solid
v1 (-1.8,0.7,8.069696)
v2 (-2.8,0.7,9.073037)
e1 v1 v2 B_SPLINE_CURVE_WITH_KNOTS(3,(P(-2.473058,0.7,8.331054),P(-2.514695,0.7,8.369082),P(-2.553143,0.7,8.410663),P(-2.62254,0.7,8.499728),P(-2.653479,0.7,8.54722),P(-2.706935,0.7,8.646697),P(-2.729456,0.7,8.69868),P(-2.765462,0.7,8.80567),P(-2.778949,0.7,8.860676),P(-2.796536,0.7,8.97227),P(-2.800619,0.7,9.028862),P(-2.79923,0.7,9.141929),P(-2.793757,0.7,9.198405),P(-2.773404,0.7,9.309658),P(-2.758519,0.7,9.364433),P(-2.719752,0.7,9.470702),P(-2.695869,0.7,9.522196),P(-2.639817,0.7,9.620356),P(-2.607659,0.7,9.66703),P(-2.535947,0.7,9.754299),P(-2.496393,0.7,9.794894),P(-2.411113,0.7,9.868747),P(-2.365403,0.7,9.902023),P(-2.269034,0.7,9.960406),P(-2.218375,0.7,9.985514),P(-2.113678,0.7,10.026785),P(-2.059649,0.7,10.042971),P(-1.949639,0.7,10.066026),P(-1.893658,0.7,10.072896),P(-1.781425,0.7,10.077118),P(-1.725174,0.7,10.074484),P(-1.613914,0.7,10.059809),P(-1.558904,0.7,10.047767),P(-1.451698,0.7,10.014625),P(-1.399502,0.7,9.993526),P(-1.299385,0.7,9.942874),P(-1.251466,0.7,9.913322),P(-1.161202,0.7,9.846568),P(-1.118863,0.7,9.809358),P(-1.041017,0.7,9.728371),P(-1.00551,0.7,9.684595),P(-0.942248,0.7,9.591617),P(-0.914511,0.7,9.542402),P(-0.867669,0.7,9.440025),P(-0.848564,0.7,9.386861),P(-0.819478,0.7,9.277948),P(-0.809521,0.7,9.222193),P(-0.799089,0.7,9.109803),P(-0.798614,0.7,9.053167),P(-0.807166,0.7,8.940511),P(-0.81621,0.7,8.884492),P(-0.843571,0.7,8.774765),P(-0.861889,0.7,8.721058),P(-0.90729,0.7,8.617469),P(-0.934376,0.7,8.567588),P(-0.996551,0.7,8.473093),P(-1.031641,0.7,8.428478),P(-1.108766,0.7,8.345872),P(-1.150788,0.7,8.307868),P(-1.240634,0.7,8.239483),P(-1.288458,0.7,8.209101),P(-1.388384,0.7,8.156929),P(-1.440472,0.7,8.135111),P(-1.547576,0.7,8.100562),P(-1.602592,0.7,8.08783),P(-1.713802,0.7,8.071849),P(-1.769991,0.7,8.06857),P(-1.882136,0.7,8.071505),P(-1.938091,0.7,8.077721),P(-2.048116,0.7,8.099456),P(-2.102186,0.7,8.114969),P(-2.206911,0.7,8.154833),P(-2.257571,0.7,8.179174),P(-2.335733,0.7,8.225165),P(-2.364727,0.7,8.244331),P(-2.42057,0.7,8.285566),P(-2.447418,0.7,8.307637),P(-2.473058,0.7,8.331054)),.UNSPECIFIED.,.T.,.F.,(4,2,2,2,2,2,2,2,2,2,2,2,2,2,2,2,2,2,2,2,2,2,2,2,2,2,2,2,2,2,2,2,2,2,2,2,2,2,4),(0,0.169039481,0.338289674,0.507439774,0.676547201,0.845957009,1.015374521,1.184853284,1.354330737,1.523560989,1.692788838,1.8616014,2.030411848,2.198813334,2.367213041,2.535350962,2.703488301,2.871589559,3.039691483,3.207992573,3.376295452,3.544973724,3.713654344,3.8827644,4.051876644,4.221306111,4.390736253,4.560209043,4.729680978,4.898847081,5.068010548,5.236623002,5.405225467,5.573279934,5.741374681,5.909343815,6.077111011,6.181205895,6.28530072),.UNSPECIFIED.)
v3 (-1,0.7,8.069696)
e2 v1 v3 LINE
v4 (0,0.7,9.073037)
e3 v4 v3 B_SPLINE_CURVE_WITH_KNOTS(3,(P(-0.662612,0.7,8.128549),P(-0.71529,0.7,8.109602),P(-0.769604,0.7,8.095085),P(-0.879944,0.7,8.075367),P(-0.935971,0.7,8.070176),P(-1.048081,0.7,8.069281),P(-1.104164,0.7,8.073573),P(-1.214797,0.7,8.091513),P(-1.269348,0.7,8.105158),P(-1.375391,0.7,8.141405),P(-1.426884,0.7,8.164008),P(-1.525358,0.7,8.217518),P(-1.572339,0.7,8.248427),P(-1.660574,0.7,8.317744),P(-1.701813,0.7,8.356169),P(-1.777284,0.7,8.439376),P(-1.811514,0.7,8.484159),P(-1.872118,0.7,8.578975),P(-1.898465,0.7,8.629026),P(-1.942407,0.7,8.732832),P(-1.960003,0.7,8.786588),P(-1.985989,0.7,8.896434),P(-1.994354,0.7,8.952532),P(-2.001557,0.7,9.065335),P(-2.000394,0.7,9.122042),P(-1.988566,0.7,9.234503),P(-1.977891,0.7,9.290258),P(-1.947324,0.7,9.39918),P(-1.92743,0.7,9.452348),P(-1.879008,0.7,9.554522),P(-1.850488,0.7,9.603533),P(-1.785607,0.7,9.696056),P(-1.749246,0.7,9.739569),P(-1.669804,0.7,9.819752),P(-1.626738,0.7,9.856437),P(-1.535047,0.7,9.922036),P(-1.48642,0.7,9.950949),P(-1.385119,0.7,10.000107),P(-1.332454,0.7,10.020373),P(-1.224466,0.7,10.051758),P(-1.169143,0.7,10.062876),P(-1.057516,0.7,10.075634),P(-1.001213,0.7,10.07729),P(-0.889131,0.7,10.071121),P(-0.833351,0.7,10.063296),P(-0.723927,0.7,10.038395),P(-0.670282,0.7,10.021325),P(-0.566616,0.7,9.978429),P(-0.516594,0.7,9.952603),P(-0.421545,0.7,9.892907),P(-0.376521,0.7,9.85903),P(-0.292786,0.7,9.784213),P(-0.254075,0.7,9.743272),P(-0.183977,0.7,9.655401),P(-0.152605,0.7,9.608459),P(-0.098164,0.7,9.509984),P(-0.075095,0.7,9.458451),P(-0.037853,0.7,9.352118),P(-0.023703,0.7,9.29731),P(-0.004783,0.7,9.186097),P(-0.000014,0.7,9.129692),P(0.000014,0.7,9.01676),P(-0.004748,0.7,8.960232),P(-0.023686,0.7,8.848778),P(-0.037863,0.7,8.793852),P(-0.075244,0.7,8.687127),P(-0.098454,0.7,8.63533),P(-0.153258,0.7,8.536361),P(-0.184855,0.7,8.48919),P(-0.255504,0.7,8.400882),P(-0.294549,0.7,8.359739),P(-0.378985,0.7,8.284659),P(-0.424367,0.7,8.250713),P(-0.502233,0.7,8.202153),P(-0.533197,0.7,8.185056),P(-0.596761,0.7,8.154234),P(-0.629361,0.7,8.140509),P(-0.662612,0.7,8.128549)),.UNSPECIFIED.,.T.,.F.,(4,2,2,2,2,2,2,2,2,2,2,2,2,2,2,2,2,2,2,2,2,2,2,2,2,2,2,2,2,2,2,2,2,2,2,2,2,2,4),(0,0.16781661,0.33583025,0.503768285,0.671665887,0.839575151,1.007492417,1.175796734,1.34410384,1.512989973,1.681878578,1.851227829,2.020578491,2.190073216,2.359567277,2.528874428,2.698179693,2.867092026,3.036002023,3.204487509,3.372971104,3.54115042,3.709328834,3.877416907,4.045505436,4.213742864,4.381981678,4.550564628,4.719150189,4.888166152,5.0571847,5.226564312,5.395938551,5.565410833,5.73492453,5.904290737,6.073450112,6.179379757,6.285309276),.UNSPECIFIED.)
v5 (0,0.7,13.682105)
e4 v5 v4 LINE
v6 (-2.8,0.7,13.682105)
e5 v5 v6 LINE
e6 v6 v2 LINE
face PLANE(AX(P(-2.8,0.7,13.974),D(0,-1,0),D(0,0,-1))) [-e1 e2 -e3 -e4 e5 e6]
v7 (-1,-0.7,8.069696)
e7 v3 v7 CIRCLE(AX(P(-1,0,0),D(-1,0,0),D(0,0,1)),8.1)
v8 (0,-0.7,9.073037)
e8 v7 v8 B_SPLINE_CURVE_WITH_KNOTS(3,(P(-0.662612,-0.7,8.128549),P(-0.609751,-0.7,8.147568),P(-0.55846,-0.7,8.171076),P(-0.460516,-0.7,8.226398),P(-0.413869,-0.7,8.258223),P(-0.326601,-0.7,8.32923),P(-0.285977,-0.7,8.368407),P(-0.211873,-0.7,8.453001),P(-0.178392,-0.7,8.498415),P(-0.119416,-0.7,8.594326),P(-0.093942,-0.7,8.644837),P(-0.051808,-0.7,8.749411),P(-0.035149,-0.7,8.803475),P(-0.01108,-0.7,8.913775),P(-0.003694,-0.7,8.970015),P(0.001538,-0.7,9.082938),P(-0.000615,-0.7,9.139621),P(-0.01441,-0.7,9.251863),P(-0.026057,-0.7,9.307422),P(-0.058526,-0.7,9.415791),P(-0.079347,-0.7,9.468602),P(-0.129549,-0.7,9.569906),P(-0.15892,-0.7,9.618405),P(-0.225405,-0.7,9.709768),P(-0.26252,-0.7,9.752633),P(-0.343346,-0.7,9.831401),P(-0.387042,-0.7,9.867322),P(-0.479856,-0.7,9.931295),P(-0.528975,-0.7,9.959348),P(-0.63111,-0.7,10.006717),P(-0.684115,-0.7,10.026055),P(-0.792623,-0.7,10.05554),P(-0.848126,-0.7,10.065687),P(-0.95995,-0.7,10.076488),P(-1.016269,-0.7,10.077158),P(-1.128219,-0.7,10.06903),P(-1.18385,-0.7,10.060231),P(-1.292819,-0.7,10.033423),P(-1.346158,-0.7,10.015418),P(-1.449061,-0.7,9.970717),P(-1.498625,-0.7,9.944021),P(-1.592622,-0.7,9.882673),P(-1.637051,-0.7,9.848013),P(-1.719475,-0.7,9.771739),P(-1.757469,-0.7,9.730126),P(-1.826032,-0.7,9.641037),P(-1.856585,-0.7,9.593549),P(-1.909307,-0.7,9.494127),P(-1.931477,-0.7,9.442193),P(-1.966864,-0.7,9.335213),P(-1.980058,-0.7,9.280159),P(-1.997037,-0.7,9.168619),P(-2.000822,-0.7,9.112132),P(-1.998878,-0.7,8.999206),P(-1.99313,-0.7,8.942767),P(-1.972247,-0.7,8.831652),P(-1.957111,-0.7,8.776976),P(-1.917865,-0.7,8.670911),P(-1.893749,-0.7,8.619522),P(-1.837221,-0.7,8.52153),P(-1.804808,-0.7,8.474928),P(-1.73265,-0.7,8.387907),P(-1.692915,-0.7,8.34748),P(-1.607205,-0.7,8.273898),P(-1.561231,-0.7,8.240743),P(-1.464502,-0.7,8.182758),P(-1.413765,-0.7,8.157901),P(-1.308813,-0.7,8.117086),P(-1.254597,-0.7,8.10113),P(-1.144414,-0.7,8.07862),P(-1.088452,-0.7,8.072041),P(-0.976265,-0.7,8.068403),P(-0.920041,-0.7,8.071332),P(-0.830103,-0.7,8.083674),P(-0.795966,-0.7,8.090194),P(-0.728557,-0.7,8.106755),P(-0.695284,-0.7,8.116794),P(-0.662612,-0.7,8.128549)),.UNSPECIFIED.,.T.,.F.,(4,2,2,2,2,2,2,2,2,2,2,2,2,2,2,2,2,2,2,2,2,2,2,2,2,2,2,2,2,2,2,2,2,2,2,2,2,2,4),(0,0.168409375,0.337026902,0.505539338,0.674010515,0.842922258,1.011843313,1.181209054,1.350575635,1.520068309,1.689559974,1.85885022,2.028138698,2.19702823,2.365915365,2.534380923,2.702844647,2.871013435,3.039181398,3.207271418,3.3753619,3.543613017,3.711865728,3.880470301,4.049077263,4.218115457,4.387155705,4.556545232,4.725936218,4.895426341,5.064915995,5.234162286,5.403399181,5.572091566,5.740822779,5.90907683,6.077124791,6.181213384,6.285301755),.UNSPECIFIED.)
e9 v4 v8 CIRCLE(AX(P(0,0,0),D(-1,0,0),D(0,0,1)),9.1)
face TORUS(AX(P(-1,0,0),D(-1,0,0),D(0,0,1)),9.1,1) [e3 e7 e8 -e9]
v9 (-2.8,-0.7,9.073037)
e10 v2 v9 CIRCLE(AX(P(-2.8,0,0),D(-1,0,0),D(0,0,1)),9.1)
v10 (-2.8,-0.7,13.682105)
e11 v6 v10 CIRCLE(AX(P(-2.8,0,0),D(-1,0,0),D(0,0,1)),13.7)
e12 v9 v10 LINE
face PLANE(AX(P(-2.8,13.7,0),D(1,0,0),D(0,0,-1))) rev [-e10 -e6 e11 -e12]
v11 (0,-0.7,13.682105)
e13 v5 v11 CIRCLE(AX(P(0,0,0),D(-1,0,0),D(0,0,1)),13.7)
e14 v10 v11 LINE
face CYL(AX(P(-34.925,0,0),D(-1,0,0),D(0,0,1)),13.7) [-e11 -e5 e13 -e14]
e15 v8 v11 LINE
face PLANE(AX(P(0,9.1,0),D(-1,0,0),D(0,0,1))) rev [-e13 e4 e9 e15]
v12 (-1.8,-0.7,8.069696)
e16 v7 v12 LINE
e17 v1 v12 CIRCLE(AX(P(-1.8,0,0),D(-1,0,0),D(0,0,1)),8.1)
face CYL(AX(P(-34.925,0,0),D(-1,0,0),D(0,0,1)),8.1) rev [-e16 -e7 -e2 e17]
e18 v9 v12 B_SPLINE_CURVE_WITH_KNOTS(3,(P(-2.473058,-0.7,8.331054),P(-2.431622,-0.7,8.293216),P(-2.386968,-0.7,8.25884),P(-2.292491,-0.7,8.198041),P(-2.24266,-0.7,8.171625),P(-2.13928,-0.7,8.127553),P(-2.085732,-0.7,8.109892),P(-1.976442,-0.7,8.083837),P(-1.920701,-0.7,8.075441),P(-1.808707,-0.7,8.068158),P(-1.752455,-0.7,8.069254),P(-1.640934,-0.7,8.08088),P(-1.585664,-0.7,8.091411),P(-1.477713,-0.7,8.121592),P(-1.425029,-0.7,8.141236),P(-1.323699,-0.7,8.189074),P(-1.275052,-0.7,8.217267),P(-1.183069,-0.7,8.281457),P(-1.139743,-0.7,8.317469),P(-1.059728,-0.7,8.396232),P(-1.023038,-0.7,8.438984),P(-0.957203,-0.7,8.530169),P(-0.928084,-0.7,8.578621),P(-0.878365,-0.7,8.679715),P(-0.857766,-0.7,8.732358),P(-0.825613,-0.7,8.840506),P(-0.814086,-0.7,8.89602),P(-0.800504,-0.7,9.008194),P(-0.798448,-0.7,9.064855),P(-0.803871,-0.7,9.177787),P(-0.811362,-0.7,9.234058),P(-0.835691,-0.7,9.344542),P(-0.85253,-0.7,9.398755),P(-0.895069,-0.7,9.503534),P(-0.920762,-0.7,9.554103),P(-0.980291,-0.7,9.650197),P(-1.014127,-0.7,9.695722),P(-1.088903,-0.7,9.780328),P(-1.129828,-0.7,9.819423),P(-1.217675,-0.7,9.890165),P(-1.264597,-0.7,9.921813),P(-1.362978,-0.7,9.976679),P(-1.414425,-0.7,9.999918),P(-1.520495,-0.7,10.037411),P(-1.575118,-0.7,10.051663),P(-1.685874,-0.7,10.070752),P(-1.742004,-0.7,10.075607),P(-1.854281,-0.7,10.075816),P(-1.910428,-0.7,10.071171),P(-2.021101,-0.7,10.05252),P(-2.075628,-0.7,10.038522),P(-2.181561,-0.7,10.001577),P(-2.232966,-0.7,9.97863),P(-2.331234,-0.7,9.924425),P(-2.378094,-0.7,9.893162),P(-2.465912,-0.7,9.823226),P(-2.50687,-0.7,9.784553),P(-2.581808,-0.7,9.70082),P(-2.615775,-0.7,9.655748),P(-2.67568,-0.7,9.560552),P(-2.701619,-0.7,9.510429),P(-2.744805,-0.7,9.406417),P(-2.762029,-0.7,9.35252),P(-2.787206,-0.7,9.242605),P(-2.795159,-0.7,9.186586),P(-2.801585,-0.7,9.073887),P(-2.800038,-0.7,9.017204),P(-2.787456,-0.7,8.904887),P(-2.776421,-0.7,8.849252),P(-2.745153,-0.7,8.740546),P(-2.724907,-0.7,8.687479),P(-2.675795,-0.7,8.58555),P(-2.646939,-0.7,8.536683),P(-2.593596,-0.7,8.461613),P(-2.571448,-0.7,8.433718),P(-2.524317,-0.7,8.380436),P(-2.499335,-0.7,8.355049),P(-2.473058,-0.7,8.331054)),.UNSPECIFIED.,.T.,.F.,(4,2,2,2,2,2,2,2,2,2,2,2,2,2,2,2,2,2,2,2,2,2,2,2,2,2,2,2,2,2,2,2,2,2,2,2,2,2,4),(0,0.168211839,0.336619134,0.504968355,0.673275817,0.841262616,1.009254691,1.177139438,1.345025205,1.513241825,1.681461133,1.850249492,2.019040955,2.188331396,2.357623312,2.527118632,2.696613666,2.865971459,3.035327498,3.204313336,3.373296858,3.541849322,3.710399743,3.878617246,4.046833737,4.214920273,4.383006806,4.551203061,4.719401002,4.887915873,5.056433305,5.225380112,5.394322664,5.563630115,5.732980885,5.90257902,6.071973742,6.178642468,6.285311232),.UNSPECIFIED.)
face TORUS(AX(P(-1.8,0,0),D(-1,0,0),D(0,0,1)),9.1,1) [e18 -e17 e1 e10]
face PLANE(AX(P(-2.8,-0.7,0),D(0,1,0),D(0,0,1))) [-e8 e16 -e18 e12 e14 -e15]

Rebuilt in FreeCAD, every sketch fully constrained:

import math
import FreeCAD as App
import Part
import Sketcher

doc = App.newDocument("Part")
params = doc.addObject("Spreadsheet::Sheet", "Params")
for row, (alias, value) in enumerate([
    ("sketch1_radius", "1 mm"),
    ("sketch1_width", "2.8 mm"),
    ("sketch1_height", "4.6 mm"),
    ("revolution_angle", "360 deg"),
    ("sketch2_width", "1.4 mm"),
], start=1):
    params.set(f"A{row}", alias)
    params.set(f"B{row}", "=" + value)
    params.setAlias(f"B{row}", alias)

body = doc.addObject("PartDesign::Body", "Body")

# Sketch on XY plane
sketch1 = doc.addObject("Sketcher::SketchObject", "Sketch")
body.addObject(sketch1)
sketch1.AttachmentSupport = (doc.XY_Plane, [""])
sketch1.MapMode = "FlatFace"
sketch1.addGeometry([
    Part.LineSegment(App.Vector(0, 9.1, 0), App.Vector(0, 13.7, 0)),  # 0
    Part.LineSegment(App.Vector(0, 13.7, 0), App.Vector(-2.8, 13.7, 0)),  # 1
    Part.LineSegment(App.Vector(-2.8, 13.7, 0), App.Vector(-2.8, 9.1, 0)),  # 2
    Part.ArcOfCircle(Part.Circle(App.Vector(-1.8, 9.1, 0), App.Vector(0, 0, 1), 1), math.radians(-180), math.radians(-90)),  # 3
    Part.LineSegment(App.Vector(-1.8, 8.1, 0), App.Vector(-1, 8.1, 0)),  # 4
    Part.ArcOfCircle(Part.Circle(App.Vector(-1, 9.1, 0), App.Vector(0, 0, 1), 1), math.radians(-90), math.radians(0)),  # 5
], False)
sketch1.addConstraint([
    Sketcher.Constraint("Coincident", 0, 2, 1, 1),
    Sketcher.Constraint("Coincident", 1, 2, 2, 1),
    Sketcher.Constraint("Tangent", 2, 2, 3, 1),
    Sketcher.Constraint("Tangent", 3, 2, 4, 1),
    Sketcher.Constraint("Tangent", 4, 2, 5, 1),
    Sketcher.Constraint("Tangent", 5, 2, 0, 1),
    Sketcher.Constraint("Vertical", 0),
    Sketcher.Constraint("Horizontal", 1),
    Sketcher.Constraint("Vertical", 2),
    Sketcher.Constraint("Horizontal", 4),
    Sketcher.Constraint("Equal", 3, 5),
    Sketcher.Constraint("PointOnObject", 0, 2, -2),
    Sketcher.Constraint("Radius", 3, 1.0),
    Sketcher.Constraint("DistanceX", 1, 2, 1, 1, 2.8),
    Sketcher.Constraint("DistanceY", 0, 1, 0, 2, 4.6),
    Sketcher.Constraint("DistanceY", -1, 1, 3, 3, 9.1),
])
sketch1.setExpression("Constraints[12]", "Params.sketch1_radius")
sketch1.setExpression("Constraints[13]", "Params.sketch1_width")
sketch1.setExpression("Constraints[14]", "Params.sketch1_height")
revolution = doc.addObject("PartDesign::Revolution", "Revolution")
body.addObject(revolution)
revolution.Profile = sketch1
revolution.ReferenceAxis = (sketch1, ["H_Axis"])
revolution.setExpression("Angle", "Params.revolution_angle")

# Sketch on YZ plane
sketch2 = doc.addObject("Sketcher::SketchObject", "Sketch001")
body.addObject(sketch2)
sketch2.AttachmentSupport = (doc.YZ_Plane, [""])
sketch2.MapMode = "FlatFace"
sketch2.addGeometry([
    Part.LineSegment(App.Vector(0.7, 14, 0), App.Vector(0.7, 0, 0)),
    Part.LineSegment(App.Vector(0.7, 0, 0), App.Vector(-0.7, 0, 0)),
    Part.LineSegment(App.Vector(-0.7, 0, 0), App.Vector(-0.7, 14, 0)),
    Part.LineSegment(App.Vector(-0.7, 14, 0), App.Vector(0.7, 14, 0)),
], False)
sketch2.addConstraint([
    Sketcher.Constraint("Coincident", 0, 2, 1, 1),
    Sketcher.Constraint("Coincident", 1, 2, 2, 1),
    Sketcher.Constraint("Coincident", 2, 2, 3, 1),
    Sketcher.Constraint("Coincident", 3, 2, 0, 1),
    Sketcher.Constraint("Vertical", 0),
    Sketcher.Constraint("Horizontal", 1),
    Sketcher.Constraint("Vertical", 2),
    Sketcher.Constraint("Horizontal", 3),
    Sketcher.Constraint("Symmetric", 0, 2, 1, 2, -1, 1),
    Sketcher.Constraint("DistanceX", 1, 2, 1, 1, 1.4),
    Sketcher.Constraint("DistanceY", 0, 2, 0, 1, 13.974),
])
sketch2.setExpression("Constraints[9]", "Params.sketch2_width")
pocket1 = doc.addObject("PartDesign::Pocket", "Pocket")
body.addObject(pocket1)
pocket1.Profile = sketch2
pocket1.Type = "ThroughAll"

doc.recompute()
